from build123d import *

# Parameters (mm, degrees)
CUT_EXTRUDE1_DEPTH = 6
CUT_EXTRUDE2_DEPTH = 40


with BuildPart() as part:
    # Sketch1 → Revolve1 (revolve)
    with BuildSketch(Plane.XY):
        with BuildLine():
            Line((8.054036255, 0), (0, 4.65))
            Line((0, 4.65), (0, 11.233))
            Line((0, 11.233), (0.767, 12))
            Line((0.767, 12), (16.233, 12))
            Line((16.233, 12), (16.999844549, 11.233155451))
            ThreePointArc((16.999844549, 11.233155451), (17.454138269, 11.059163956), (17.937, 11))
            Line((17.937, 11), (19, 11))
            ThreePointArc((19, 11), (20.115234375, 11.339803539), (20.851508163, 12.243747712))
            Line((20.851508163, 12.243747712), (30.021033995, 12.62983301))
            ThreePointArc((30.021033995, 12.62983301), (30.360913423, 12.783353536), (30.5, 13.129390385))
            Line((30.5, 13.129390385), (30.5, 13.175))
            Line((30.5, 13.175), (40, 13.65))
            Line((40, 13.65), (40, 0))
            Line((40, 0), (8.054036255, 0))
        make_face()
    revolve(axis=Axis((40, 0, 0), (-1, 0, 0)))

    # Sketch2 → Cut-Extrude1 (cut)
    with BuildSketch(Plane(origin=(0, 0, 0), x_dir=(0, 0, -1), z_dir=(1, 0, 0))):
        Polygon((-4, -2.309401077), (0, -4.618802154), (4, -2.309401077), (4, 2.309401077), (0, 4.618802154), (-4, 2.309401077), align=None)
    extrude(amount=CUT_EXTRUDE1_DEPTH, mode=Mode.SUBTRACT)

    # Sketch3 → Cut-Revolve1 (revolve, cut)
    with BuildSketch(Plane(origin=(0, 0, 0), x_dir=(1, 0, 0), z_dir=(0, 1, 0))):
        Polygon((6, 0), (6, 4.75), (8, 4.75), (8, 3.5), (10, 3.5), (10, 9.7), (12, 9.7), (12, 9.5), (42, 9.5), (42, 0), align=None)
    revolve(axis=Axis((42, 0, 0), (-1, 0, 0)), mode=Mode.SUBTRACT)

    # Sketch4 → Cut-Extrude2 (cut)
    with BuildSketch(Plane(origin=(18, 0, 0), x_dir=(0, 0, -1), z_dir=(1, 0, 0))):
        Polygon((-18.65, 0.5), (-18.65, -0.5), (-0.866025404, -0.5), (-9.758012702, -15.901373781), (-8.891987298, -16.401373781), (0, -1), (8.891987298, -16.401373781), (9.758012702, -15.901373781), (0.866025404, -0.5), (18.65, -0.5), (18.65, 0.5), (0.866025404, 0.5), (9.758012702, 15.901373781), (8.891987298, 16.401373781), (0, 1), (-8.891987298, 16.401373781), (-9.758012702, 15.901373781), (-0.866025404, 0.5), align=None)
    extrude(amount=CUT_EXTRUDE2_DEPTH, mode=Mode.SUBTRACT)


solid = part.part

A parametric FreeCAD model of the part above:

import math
import FreeCAD as App
import Part
import Sketcher
Q = App.Units.Quantity


def add_polygon(sketch, points):
    """Adds a closed chain of lines whose ends are joined by coincident constraints."""
    first, n = sketch.GeometryCount, len(points)
    for a, b in zip(points, points[1:] + points[:1]):
        sketch.addGeometry(Part.LineSegment(App.Vector(*a, 0), App.Vector(*b, 0)), False)
    for i in range(n):
        sketch.addConstraint(Sketcher.Constraint("Coincident", first + i, 2, first + (i + 1) % n, 1))

doc = App.newDocument("Part")
body = doc.addObject("PartDesign::Body", "Body")

# Sketch on XY plane
sketch1 = body.newObject("Sketcher::SketchObject", "Sketch")
sketch1.AttachmentSupport = (doc.getObject("XY_Plane"), [""])
sketch1.MapMode = "FlatFace"
sketch1.addGeometry(Part.LineSegment(App.Vector(0, 4.65, 0), App.Vector(8.054, 0, 0)), False)
sketch1.addGeometry(Part.LineSegment(App.Vector(8.054, 0, 0), App.Vector(40, 0, 0)), False)
sketch1.addGeometry(Part.LineSegment(App.Vector(40, 0, 0), App.Vector(40, 13.65, 0)), False)
sketch1.addGeometry(Part.LineSegment(App.Vector(40, 13.65, 0), App.Vector(30.5, 13.175, 0)), False)
sketch1.addGeometry(Part.LineSegment(App.Vector(30.5, 13.175, 0), App.Vector(30.5, 13.129, 0)), False)
sketch1.addGeometry(Part.ArcOfCircle(Part.Circle(App.Vector(30, 13.129, 0), App.Vector(0, 0, 1), 0.5), math.radians(-88), math.radians(0)), False)
sketch1.addGeometry(Part.LineSegment(App.Vector(30.021, 12.63, 0), App.Vector(20.852, 12.244, 0)), False)
sketch1.addGeometry(Part.ArcOfCircle(Part.Circle(App.Vector(19, 13, 0), App.Vector(0, 0, 1), 2), math.radians(-90), math.radians(-22)), False)
sketch1.addGeometry(Part.LineSegment(App.Vector(19, 11, 0), App.Vector(17.937, 11, 0)), False)
sketch1.addGeometry(Part.ArcOfCircle(Part.Circle(App.Vector(17.937, 13, 0), App.Vector(0, 0, 1), 2), math.radians(-118), math.radians(-90)), False)
sketch1.addGeometry(Part.LineSegment(App.Vector(17, 11.233, 0), App.Vector(16.233, 12, 0)), False)
sketch1.addGeometry(Part.LineSegment(App.Vector(16.233, 12, 0), App.Vector(0.767, 12, 0)), False)
sketch1.addGeometry(Part.LineSegment(App.Vector(0.767, 12, 0), App.Vector(0, 11.233, 0)), False)
sketch1.addGeometry(Part.LineSegment(App.Vector(0, 11.233, 0), App.Vector(0, 4.65, 0)), False)
sketch1.addConstraint(Sketcher.Constraint("Coincident", 0, 2, 1, 1))
sketch1.addConstraint(Sketcher.Constraint("Coincident", 1, 2, 2, 1))
sketch1.addConstraint(Sketcher.Constraint("Coincident", 2, 2, 3, 1))
sketch1.addConstraint(Sketcher.Constraint("Coincident", 3, 2, 4, 1))
sketch1.addConstraint(Sketcher.Constraint("Tangent", 4, 2, 5, 2))
sketch1.addConstraint(Sketcher.Constraint("Tangent", 5, 1, 6, 1))
sketch1.addConstraint(Sketcher.Constraint("Coincident", 6, 2, 7, 2))
sketch1.addConstraint(Sketcher.Constraint("Tangent", 7, 1, 8, 1))
sketch1.addConstraint(Sketcher.Constraint("Tangent", 8, 2, 9, 2))
sketch1.addConstraint(Sketcher.Constraint("Coincident", 9, 1, 10, 1))
sketch1.addConstraint(Sketcher.Constraint("Coincident", 10, 2, 11, 1))
sketch1.addConstraint(Sketcher.Constraint("Coincident", 11, 2, 12, 1))
sketch1.addConstraint(Sketcher.Constraint("Coincident", 12, 2, 13, 1))
sketch1.addConstraint(Sketcher.Constraint("Coincident", 13, 2, 0, 1))
sketch1.addConstraint(Sketcher.Constraint("Horizontal", 1))
sketch1.addConstraint(Sketcher.Constraint("Vertical", 2))
sketch1.addConstraint(Sketcher.Constraint("Vertical", 4))
sketch1.addConstraint(Sketcher.Constraint("Horizontal", 8))
sketch1.addConstraint(Sketcher.Constraint("Horizontal", 11))
sketch1.addConstraint(Sketcher.Constraint("Vertical", 13))
sketch1.addConstraint(Sketcher.Constraint("Equal", 7, 9))
sketch1.addConstraint(Sketcher.Constraint("PointOnObject", 0, 2, -1))
sketch1.addConstraint(Sketcher.Constraint("PointOnObject", 12, 2, -2))
sketch1.addConstraint(Sketcher.Constraint("Perpendicular", 10, 12))
sketch1.addConstraint(Sketcher.Constraint("Radius", 7, 2.0))
sketch1.addConstraint(Sketcher.Constraint("Radius", 5, 0.5))
sketch1.addConstraint(Sketcher.Constraint("Angle", 0, Q("-30 deg")))
sketch1.addConstraint(Sketcher.Constraint("Angle", 10, Q("135 deg")))
sketch1.addConstraint(Sketcher.Constraint("DistanceX", -1, 1, 5, 3, 30.0))
sketch1.addConstraint(Sketcher.Constraint("DistanceX", -1, 1, 7, 3, 19.0))
sketch1.addConstraint(Sketcher.Constraint("DistanceY", -1, 1, 7, 3, 13.0))
sketch1.addConstraint(Sketcher.Constraint("DistanceX", -1, 1, 1, 2, 40.0))
sketch1.addConstraint(Sketcher.Constraint("DistanceY", -1, 1, 10, 2, 12.0))
sketch1.addConstraint(Sketcher.Constraint("Distance", 0, 9.3))
sketch1.addConstraint(Sketcher.Constraint("DistanceY", 2, 1, 2, 2, 13.65))
sketch1.addConstraint(Sketcher.Constraint("DistanceX", 8, 2, 8, 1, 1.063))
sketch1.addConstraint(Sketcher.Constraint("DistanceX", 11, 2, 11, 1, 15.466))
sketch1.addConstraint(Sketcher.Constraint("DistanceY", 13, 2, 13, 1, 6.583))
sketch1.addConstraint(Sketcher.Constraint("DistanceY", -1, 1, 3, 2, 13.175))
sketch1.addConstraint(Sketcher.Constraint("DistanceY", 4, 2, 4, 1, 0.04561))
sketch1.addConstraint(Sketcher.Constraint("Distance", 6, 9.17765))
revolution = body.newObject("PartDesign::Revolution", "Revolution")
revolution.Profile = sketch1
revolution.ReferenceAxis = (sketch1, ["H_Axis"])
revolution.Angle = 360

# Sketch on YZ plane
sketch2 = body.newObject("Sketcher::SketchObject", "Sketch001")
sketch2.AttachmentSupport = (doc.getObject("YZ_Plane"), [""])
sketch2.MapMode = "FlatFace"
add_polygon(sketch2, [(-2.3, 4), (-4.6, 0), (-2.3, -4), (2.3, -4), (4.6, 0), (2.3, 4)])  # lines 0-5
sketch2.addConstraint(Sketcher.Constraint("Horizontal", 2))
sketch2.addConstraint(Sketcher.Constraint("Horizontal", 5))
sketch2.addConstraint(Sketcher.Constraint("Symmetric", 0, 2, 3, 2, -1, 1))
sketch2.addConstraint(Sketcher.Constraint("Symmetric", 1, 2, 4, 2, -1, 1))
sketch2.addConstraint(Sketcher.Constraint("PointOnObject", 0, 2, -1))
sketch2.addConstraint(Sketcher.Constraint("Parallel", 0, 3))
sketch2.addConstraint(Sketcher.Constraint("Vertical", 2, 2, 4, 2))
sketch2.addConstraint(Sketcher.Constraint("Angle", 0, Q("-120 deg")))
sketch2.addConstraint(Sketcher.Constraint("DistanceY", 1, 2, -1, 1, 4.0))
sketch2.addConstraint(Sketcher.Constraint("DistanceX", 1, 2, -1, 1, 2.309401))
pocket1 = body.newObject("PartDesign::Pocket", "Pocket")
pocket1.Profile = sketch2
pocket1.Length = 6
pocket1.Reversed = True

# Sketch on XZ plane
sketch3 = body.newObject("Sketcher::SketchObject", "Sketch002")
sketch3.AttachmentSupport = (doc.getObject("XZ_Plane"), [""])
sketch3.MapMode = "FlatFace"
add_polygon(sketch3, [(6, -4.75), (6, 0), (42, 0), (42, -9.5), (12, -9.5), (12, -9.7), (10, -9.7), (10, -3.5), (8, -3.5), (8, -4.75)])  # lines 0-9
sketch3.addConstraint(Sketcher.Constraint("Vertical", 0))
sketch3.addConstraint(Sketcher.Constraint("Horizontal", 1))
sketch3.addConstraint(Sketcher.Constraint("Vertical", 2))
sketch3.addConstraint(Sketcher.Constraint("Horizontal", 3))
sketch3.addConstraint(Sketcher.Constraint("Vertical", 4))
sketch3.addConstraint(Sketcher.Constraint("Horizontal", 5))
sketch3.addConstraint(Sketcher.Constraint("Vertical", 6))
sketch3.addConstraint(Sketcher.Constraint("Horizontal", 7))
sketch3.addConstraint(Sketcher.Constraint("Vertical", 8))
sketch3.addConstraint(Sketcher.Constraint("Horizontal", 9))
sketch3.addConstraint(Sketcher.Constraint("PointOnObject", 0, 2, -1))
sketch3.addConstraint(Sketcher.Constraint("Equal", 5, 7))
sketch3.addConstraint(Sketcher.Constraint("Equal", 7, 9))
sketch3.addConstraint(Sketcher.Constraint("DistanceX", 1, 1, 1, 2, 36.0))
sketch3.addConstraint(Sketcher.Constraint("DistanceX", 3, 2, 3, 1, 30.0))
sketch3.addConstraint(Sketcher.Constraint("DistanceY", 2, 2, 2, 1, 9.5))
sketch3.addConstraint(Sketcher.Constraint("DistanceY", 4, 2, 4, 1, 0.2))
sketch3.addConstraint(Sketcher.Constraint("DistanceY", 6, 1, 6, 2, 6.2))
sketch3.addConstraint(Sketcher.Constraint("DistanceX", -1, 1, 0, 2, 6.0))
sketch3.addConstraint(Sketcher.Constraint("DistanceY", 0, 1, 0, 2, 4.75))
groove = body.newObject("PartDesign::Groove", "Groove")
groove.Profile = sketch3
groove.ReferenceAxis = (sketch3, ["H_Axis"])
groove.Angle = 360

# Sketch on YZ plane
sketch4 = body.newObject("Sketcher::SketchObject", "Sketch003")
sketch4.AttachmentSupport = (doc.getObject("YZ_Plane"), [""])
sketch4.MapMode = "FlatFace"
sketch4.AttachmentOffset = App.Placement(App.Vector(0, 0, 18), App.Rotation())
add_polygon(sketch4, [(0.5, 18.6), (-0.5, 18.6), (-0.5, 0.9), (-15.9, 9.8), (-16.4, 8.9), (-1, 0), (-16.4, -8.9), (-15.9, -9.8), (-0.5, -0.9), (-0.5, -18.6), (0.5, -18.6), (0.5, -0.9), (15.9, -9.8), (16.4, -8.9), (1, 0), (16.4, 8.9), (15.9, 9.8), (0.5, 0.9)])  # lines 0-17
sketch4.addConstraint(Sketcher.Constraint("Horizontal", 0))
sketch4.addConstraint(Sketcher.Constraint("Vertical", 1))
sketch4.addConstraint(Sketcher.Constraint("Vertical", 8))
sketch4.addConstraint(Sketcher.Constraint("Horizontal", 9))
sketch4.addConstraint(Sketcher.Constraint("Vertical", 10))
sketch4.addConstraint(Sketcher.Constraint("Vertical", 17))
sketch4.addConstraint(Sketcher.Constraint("Symmetric", 0, 2, 9, 2, -1, 1))
sketch4.addConstraint(Sketcher.Constraint("Symmetric", 2, 2, 11, 2, -1, 1))
sketch4.addConstraint(Sketcher.Constraint("Symmetric", 3, 2, 12, 2, -1, 1))
sketch4.addConstraint(Sketcher.Constraint("Symmetric", 4, 2, 13, 2, -1, 1))
sketch4.addConstraint(Sketcher.Constraint("Symmetric", 5, 2, 14, 2, -1, 1))
sketch4.addConstraint(Sketcher.Constraint("Symmetric", 6, 2, 15, 2, -1, 1))
sketch4.addConstraint(Sketcher.Constraint("Symmetric", 7, 2, 16, 2, -1, 1))
sketch4.addConstraint(Sketcher.Constraint("Symmetric", 7, 2, 10, 2, -2))
sketch4.addConstraint(Sketcher.Constraint("Symmetric", 6, 2, 11, 2, -2))
sketch4.addConstraint(Sketcher.Constraint("Symmetric", 5, 2, 12, 2, -2))
sketch4.addConstraint(Sketcher.Constraint("PointOnObject", 4, 2, -1))
sketch4.addConstraint(Sketcher.Constraint("Perpendicular", 2, 3))
sketch4.addConstraint(Sketcher.Constraint("Perpendicular", 3, 4))
sketch4.addConstraint(Sketcher.Constraint("Perpendicular", 6, 7))
sketch4.addConstraint(Sketcher.Constraint("Equal", 2, 4))
sketch4.addConstraint(Sketcher.Constraint("DistanceX", 0, 2, 0, 1, 1.0))
sketch4.addConstraint(Sketcher.Constraint("Angle", 2, Q("150 deg")))
sketch4.addConstraint(Sketcher.Constraint("Distance", 3, 1.0))
sketch4.addConstraint(Sketcher.Constraint("DistanceY", -1, 1, 0, 2, 18.65))
sketch4.addConstraint(Sketcher.Constraint("DistanceY", 5, 2, 2, 2, 18.65))
pocket2 = body.newObject("PartDesign::Pocket", "Pocket001")
pocket2.Profile = sketch4
pocket2.Length = 40
pocket2.Reversed = True

doc.recompute()
